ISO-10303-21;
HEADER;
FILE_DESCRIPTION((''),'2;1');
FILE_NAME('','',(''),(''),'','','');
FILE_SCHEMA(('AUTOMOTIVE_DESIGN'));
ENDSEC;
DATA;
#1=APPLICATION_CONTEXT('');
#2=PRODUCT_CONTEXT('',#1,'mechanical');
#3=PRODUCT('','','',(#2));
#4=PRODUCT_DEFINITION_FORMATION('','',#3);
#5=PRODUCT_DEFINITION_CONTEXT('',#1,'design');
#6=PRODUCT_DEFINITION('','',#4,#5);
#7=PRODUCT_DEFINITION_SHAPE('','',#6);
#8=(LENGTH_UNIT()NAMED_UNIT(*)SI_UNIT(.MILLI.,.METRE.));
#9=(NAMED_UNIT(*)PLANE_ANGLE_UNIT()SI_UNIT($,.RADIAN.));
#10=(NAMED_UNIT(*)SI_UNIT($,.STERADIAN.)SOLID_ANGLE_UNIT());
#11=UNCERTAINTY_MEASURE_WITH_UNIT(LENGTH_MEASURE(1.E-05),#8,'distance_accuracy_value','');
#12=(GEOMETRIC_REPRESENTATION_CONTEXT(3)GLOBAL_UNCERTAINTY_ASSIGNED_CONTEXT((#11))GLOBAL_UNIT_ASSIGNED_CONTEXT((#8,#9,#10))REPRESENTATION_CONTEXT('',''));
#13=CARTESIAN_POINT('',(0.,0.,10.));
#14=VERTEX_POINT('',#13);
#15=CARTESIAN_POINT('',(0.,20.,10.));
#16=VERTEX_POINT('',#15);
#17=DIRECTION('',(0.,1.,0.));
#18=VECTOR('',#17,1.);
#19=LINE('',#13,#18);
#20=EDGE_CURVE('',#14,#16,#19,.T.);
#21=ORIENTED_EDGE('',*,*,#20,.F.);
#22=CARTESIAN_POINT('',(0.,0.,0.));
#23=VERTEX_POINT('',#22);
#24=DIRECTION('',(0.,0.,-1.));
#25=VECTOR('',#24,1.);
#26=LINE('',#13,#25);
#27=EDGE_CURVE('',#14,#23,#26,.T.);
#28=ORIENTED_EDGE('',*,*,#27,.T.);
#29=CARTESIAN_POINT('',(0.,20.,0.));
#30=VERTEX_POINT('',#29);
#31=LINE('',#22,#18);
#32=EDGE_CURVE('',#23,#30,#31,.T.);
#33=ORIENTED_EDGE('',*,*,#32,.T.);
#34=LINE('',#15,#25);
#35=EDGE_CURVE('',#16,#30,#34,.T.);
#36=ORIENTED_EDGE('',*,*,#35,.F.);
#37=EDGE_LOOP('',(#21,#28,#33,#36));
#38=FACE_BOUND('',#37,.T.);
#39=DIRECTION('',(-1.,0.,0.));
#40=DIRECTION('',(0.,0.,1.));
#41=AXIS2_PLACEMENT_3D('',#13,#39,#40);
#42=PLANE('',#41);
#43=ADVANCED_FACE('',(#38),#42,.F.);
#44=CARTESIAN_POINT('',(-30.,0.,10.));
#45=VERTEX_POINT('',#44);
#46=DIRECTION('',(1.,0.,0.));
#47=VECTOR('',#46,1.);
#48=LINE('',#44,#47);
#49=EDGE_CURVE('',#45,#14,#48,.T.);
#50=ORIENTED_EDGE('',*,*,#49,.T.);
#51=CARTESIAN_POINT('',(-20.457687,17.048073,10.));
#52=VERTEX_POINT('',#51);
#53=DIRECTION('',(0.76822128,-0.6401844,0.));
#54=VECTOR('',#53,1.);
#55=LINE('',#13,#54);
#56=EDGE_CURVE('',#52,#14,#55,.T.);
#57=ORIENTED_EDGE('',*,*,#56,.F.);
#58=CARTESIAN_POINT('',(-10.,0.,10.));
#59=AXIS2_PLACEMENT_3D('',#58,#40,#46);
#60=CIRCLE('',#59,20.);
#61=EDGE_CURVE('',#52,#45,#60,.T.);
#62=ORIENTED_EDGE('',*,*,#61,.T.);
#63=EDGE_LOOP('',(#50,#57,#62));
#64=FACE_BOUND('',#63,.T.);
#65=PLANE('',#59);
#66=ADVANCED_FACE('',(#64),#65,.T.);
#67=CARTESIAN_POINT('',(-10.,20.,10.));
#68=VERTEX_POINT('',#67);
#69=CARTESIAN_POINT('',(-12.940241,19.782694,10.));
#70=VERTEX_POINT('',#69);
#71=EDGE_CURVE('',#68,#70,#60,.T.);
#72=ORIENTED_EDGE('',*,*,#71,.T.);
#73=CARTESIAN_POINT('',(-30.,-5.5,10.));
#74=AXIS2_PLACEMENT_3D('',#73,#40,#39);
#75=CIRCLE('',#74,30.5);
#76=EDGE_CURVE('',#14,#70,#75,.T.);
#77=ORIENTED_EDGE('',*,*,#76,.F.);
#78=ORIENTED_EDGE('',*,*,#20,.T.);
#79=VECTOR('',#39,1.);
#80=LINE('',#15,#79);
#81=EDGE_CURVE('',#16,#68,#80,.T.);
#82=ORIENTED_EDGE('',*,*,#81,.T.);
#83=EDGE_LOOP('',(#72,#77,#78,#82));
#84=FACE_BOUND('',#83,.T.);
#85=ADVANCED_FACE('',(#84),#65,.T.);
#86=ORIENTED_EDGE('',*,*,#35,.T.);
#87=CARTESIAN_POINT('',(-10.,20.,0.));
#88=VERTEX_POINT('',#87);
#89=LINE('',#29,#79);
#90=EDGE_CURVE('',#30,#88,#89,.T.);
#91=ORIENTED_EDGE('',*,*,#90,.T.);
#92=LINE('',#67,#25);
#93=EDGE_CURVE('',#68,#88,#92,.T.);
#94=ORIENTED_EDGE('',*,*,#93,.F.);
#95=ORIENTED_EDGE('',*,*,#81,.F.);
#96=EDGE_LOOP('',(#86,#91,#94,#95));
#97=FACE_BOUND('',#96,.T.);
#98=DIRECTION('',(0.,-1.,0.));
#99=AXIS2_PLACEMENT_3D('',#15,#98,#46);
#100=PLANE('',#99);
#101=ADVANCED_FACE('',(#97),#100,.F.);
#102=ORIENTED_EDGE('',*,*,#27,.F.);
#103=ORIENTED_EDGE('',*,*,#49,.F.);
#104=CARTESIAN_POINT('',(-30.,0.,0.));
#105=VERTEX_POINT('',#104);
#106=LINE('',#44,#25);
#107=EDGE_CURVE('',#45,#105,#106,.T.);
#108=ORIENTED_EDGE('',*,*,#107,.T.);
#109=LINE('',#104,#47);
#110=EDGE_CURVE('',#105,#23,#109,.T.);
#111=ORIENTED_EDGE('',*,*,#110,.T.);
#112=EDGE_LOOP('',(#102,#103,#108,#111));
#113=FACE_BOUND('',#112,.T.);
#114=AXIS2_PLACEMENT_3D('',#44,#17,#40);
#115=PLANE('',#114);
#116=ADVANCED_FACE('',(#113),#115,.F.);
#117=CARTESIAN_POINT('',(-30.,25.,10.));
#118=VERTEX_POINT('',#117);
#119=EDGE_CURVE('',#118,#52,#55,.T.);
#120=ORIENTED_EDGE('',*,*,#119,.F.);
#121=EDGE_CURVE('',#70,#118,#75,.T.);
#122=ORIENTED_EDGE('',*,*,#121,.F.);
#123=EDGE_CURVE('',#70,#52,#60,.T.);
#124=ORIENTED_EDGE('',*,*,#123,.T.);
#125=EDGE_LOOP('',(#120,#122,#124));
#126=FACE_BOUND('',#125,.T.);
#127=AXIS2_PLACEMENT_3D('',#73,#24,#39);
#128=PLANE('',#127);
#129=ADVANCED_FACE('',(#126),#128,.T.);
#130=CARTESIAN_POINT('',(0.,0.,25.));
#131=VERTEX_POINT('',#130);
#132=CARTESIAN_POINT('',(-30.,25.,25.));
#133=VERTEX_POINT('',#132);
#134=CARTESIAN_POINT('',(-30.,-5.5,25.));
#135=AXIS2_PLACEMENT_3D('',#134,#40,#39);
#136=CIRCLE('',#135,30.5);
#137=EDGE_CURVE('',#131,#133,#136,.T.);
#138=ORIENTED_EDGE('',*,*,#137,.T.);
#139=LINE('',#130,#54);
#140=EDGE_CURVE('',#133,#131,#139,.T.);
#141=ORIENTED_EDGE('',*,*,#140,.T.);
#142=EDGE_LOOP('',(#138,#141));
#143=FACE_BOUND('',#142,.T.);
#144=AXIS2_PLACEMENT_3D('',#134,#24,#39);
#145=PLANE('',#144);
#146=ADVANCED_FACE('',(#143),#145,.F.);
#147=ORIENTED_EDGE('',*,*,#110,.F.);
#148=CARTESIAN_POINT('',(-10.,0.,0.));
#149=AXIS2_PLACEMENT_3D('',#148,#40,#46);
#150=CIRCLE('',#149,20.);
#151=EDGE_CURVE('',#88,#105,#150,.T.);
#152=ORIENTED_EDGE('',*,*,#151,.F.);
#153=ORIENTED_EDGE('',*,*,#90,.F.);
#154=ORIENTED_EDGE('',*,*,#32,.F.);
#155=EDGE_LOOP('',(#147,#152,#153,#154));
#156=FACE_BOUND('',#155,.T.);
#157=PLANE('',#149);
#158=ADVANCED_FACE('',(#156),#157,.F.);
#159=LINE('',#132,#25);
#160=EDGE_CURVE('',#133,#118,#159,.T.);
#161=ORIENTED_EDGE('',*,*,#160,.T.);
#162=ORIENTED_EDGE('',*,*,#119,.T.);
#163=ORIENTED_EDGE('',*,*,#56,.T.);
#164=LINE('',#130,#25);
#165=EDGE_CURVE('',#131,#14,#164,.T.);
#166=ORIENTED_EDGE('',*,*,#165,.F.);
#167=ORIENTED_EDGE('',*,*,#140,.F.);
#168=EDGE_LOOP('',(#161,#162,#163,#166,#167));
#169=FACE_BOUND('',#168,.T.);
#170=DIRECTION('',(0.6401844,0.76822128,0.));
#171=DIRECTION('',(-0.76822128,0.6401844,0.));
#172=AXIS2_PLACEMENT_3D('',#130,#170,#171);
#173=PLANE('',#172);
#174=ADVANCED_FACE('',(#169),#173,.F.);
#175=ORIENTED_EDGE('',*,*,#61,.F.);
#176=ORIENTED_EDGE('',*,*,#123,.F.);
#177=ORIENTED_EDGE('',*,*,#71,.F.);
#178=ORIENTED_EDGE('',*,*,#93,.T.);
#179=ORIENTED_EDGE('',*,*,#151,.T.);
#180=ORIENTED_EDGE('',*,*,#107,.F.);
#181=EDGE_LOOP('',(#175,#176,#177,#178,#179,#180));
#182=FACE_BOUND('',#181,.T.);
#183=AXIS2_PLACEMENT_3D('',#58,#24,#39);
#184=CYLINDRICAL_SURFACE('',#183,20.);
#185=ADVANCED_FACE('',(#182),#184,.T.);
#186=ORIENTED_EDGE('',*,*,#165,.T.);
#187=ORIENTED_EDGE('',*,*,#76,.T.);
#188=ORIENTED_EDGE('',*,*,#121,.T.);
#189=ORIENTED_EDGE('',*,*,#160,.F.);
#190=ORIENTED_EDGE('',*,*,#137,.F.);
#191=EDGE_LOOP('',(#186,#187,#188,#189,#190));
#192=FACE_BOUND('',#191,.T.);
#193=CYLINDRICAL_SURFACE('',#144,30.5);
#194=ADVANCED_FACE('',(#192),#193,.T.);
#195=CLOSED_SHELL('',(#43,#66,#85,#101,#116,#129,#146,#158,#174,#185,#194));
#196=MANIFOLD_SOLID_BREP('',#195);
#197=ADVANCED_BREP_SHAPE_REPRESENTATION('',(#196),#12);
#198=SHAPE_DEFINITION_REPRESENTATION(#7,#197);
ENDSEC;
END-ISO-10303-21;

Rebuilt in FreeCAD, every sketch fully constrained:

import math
import FreeCAD as App
import Part
import Sketcher
from FreeCAD import Vector

doc = App.newDocument("Part")
body = doc.addObject("PartDesign::Body", "Body")

sketch1 = body.newObject("Sketcher::SketchObject", "Sketch")
sketch1.AttachmentSupport = (doc.getObject("XY_Plane"), [""])
sketch1.MapMode = "FlatFace"
sketch1.addGeometry([
    Part.LineSegment(Vector(-30, 0, 0), Vector(0, 0, 0)),
    Part.LineSegment(Vector(0, 0, 0), Vector(0, 20, 0)),
    Part.LineSegment(Vector(0, 20, 0), Vector(-10, 20, 0)),
    Part.ArcOfCircle(Part.Circle(Vector(-10, 0, 0), Vector(0, 0, 1), 20), math.radians(90), math.radians(180)),
], False)
sketch1.addConstraint([
    Sketcher.Constraint("Coincident", 0, 2, 1, 1),
    Sketcher.Constraint("Coincident", 1, 2, 2, 1),
    Sketcher.Constraint("Tangent", 2, 2, 3, 1),
    Sketcher.Constraint("Coincident", 3, 2, 0, 1),
    Sketcher.Constraint("Horizontal", 0),
    Sketcher.Constraint("Vertical", 1),
    Sketcher.Constraint("Horizontal", 2),
    Sketcher.Constraint("Coincident", 0, 2, -1, 1),
    Sketcher.Constraint("PointOnObject", 3, 3, -1),
    Sketcher.Constraint("Radius", 3, 20.0),
    Sketcher.Constraint("DistanceX", 0, 1, 0, 2, 30.0),
])
pad1 = body.newObject("PartDesign::Pad", "Pad")
pad1.Profile = sketch1
pad1.Length = 10

sketch2 = body.newObject("Sketcher::SketchObject", "Sketch001")
sketch2.AttachmentSupport = (doc.getObject("XY_Plane"), [""])
sketch2.MapMode = "FlatFace"
sketch2.AttachmentOffset = App.Placement(Vector(0, 0, 10), App.Rotation())
sketch2.addGeometry([
    Part.LineSegment(Vector(-30, 25, 0), Vector(0, 0, 0)),
    Part.ArcOfCircle(Part.Circle(Vector(-30, -5.5, 0), Vector(0, 0, 1), 30.5), math.radians(10.388858), math.radians(90)),
], False)
sketch2.addConstraint([
    Sketcher.Constraint("Coincident", 0, 1, 1, 2),
    Sketcher.Constraint("Coincident", 1, 1, 0, 2),
    Sketcher.Constraint("Coincident", 1, 1, -1, 1),
    Sketcher.Constraint("Vertical", 1, 3, 0, 1),
    Sketcher.Constraint("Radius", 1, 30.5),
    Sketcher.Constraint("DistanceX", 1, 3, -1, 1, 30.0),
])
pad2 = body.newObject("PartDesign::Pad", "Pad001")
pad2.Profile = sketch2
pad2.Length = 15

doc.recompute()
